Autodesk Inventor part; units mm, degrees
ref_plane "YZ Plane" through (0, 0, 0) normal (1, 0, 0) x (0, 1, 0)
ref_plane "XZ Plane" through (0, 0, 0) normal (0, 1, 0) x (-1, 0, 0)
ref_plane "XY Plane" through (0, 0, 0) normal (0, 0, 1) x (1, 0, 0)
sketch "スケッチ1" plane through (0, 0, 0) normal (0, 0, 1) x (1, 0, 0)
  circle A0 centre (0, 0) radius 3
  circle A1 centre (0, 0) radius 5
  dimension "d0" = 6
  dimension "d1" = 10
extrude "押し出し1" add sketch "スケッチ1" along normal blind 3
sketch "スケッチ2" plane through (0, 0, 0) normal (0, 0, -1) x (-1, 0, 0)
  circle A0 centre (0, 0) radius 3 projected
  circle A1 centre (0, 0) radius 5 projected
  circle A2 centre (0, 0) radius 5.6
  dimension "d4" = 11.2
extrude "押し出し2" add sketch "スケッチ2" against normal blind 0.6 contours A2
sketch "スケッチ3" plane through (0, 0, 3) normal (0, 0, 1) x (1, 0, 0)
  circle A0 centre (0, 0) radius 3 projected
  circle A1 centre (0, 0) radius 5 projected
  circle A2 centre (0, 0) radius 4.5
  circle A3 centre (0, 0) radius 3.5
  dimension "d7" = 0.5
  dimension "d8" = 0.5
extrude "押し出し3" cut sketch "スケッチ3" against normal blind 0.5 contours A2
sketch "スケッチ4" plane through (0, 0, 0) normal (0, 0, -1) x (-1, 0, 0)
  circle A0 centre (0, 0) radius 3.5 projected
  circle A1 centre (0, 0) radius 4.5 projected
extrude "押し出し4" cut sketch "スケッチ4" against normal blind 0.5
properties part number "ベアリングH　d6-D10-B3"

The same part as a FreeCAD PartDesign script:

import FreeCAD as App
import Part
import Sketcher
from FreeCAD import Vector
Q = App.Units.Quantity

doc = App.newDocument("Part")
body = doc.addObject("PartDesign::Body", "Body")

sketch1 = body.newObject("Sketcher::SketchObject", "Sketch")
sketch1.AttachmentSupport = (doc.getObject("XY_Plane"), [""])
sketch1.MapMode = "FlatFace"
sketch1.addGeometry(Part.Circle(Vector(0, 0, 0), Vector(0, 0, 1), 5), False)
sketch1.addGeometry(Part.Circle(Vector(0, 0, 0), Vector(0, 0, 1), 3), False)
sketch1.addConstraint(Sketcher.Constraint("Coincident", 0, 3, -1, 1))
sketch1.addConstraint(Sketcher.Constraint("Coincident", 1, 3, -1, 1))
sketch1.addConstraint(Sketcher.Constraint("Diameter", 0, Q("10 mm")))
sketch1.addConstraint(Sketcher.Constraint("Diameter", 1, Q("6 mm")))
pad1 = body.newObject("PartDesign::Pad", "Pad")
pad1.Profile = sketch1
pad1.Length = 3

sketch2 = body.newObject("Sketcher::SketchObject", "Sketch001")
sketch2.AttachmentSupport = (doc.getObject("XY_Plane"), [""])
sketch2.MapMode = "FlatFace"
sketch2.addGeometry(Part.Circle(Vector(0, 0, 0), Vector(0, 0, 1), 6), False)
sketch2.addGeometry(Part.Circle(Vector(0, 0, 0), Vector(0, 0, 1), 5), False)
sketch2.addConstraint(Sketcher.Constraint("Coincident", 0, 3, -1, 1))
sketch2.addConstraint(Sketcher.Constraint("Coincident", 1, 3, -1, 1))
sketch2.addConstraint(Sketcher.Constraint("Diameter", 0, Q("11.2 mm")))
sketch2.addConstraint(Sketcher.Constraint("Diameter", 1, Q("10 mm")))
pad2 = body.newObject("PartDesign::Pad", "Pad001")
pad2.Profile = sketch2
pad2.Length = 0.6

sketch3 = body.newObject("Sketcher::SketchObject", "Sketch002")
sketch3.AttachmentSupport = (doc.getObject("XY_Plane"), [""])
sketch3.MapMode = "FlatFace"
sketch3.AttachmentOffset = App.Placement(Vector(0, 0, 3), App.Rotation())
sketch3.addGeometry(Part.Circle(Vector(0, 0, 0), Vector(0, 0, 1), 4.5), False)
sketch3.addGeometry(Part.Circle(Vector(0, 0, 0), Vector(0, 0, 1), 3.5), False)
sketch3.addConstraint(Sketcher.Constraint("Coincident", 0, 3, -1, 1))
sketch3.addConstraint(Sketcher.Constraint("Coincident", 1, 3, -1, 1))
sketch3.addConstraint(Sketcher.Constraint("Diameter", 0, Q("9 mm")))
sketch3.addConstraint(Sketcher.Constraint("Diameter", 1, Q("7 mm")))
pocket1 = body.newObject("PartDesign::Pocket", "Pocket")
pocket1.Profile = sketch3
pocket1.Length = 0.5

sketch4 = body.newObject("Sketcher::SketchObject", "Sketch003")
sketch4.AttachmentSupport = (doc.getObject("XY_Plane"), [""])
sketch4.MapMode = "FlatFace"
sketch4.addGeometry(Part.Circle(Vector(0, 0, 0), Vector(0, 0, 1), 4.5), False)
sketch4.addGeometry(Part.Circle(Vector(0, 0, 0), Vector(0, 0, 1), 3.5), False)
sketch4.addConstraint(Sketcher.Constraint("Coincident", 0, 3, -1, 1))
sketch4.addConstraint(Sketcher.Constraint("Coincident", 1, 3, -1, 1))
sketch4.addConstraint(Sketcher.Constraint("Diameter", 0, Q("9 mm")))
sketch4.addConstraint(Sketcher.Constraint("Diameter", 1, Q("7 mm")))
pocket2 = body.newObject("PartDesign::Pocket", "Pocket001")
pocket2.Profile = sketch4
pocket2.Length = 0.5
pocket2.Reversed = True

doc.recompute()
